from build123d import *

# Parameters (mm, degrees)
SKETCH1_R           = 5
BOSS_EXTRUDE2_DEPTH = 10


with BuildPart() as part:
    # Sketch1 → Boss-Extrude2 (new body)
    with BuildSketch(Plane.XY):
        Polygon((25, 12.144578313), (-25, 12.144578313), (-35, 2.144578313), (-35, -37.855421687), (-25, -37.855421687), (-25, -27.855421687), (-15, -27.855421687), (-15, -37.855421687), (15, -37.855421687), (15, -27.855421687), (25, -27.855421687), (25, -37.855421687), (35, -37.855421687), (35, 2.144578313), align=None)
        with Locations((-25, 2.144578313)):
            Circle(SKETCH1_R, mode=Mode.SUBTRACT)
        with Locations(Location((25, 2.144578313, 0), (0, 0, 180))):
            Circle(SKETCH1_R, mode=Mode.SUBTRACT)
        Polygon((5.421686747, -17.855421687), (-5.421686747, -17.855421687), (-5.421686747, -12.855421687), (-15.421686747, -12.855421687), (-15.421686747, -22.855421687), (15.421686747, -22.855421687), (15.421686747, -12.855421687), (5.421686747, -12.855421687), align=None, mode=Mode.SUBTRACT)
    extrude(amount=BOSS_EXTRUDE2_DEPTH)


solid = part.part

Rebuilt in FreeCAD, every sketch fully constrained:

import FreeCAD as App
import Part
import Sketcher
from FreeCAD import Vector

doc = App.newDocument("Part")
params = doc.addObject("Spreadsheet::Sheet", "Params")
for row, (alias, value) in enumerate([
    ("sketch1_diameter", "10 mm"),
    ("sketch1_width", "50 mm"),
    ("sketch1_width2", "10 mm"),
    ("sketch1_height", "40 mm"),
    ("sketch1_height2", "5 mm"),
    ("pad1_length", "10 mm"),
], start=1):
    params.set(f"A{row}", alias)
    params.set(f"B{row}", "=" + value)
    params.setAlias(f"B{row}", alias)

body = doc.addObject("PartDesign::Body", "Body")

sketch1 = body.newObject("Sketcher::SketchObject", "Sketch")
sketch1.AttachmentSupport = (doc.getObject("XY_Plane"), [""])
sketch1.MapMode = "FlatFace"
sketch1.addGeometry([
    Part.LineSegment(Vector(25, 12, 0), Vector(-25, 12, 0)),
    Part.LineSegment(Vector(-25, 12, 0), Vector(-35, 2, 0)),
    Part.LineSegment(Vector(-35, 2, 0), Vector(-35, -38, 0)),
    Part.LineSegment(Vector(-35, -38, 0), Vector(-25, -38, 0)),
    Part.LineSegment(Vector(-25, -38, 0), Vector(-25, -28, 0)),
    Part.LineSegment(Vector(-25, -28, 0), Vector(-15, -28, 0)),
    Part.LineSegment(Vector(-15, -28, 0), Vector(-15, -38, 0)),
    Part.LineSegment(Vector(-15, -38, 0), Vector(15, -38, 0)),
    Part.LineSegment(Vector(15, -38, 0), Vector(15, -28, 0)),
    Part.LineSegment(Vector(15, -28, 0), Vector(25, -28, 0)),
    Part.LineSegment(Vector(25, -28, 0), Vector(25, -38, 0)),
    Part.LineSegment(Vector(25, -38, 0), Vector(35, -38, 0)),
    Part.LineSegment(Vector(35, -38, 0), Vector(35, 2, 0)),
    Part.LineSegment(Vector(35, 2, 0), Vector(25, 12, 0)),
    Part.LineSegment(Vector(-5, -18, 0), Vector(5, -18, 0)),
    Part.LineSegment(Vector(5, -18, 0), Vector(5, -13, 0)),
    Part.LineSegment(Vector(5, -13, 0), Vector(15, -13, 0)),
    Part.LineSegment(Vector(15, -13, 0), Vector(15, -23, 0)),
    Part.LineSegment(Vector(15, -23, 0), Vector(-15, -23, 0)),
    Part.LineSegment(Vector(-15, -23, 0), Vector(-15, -13, 0)),
    Part.LineSegment(Vector(-15, -13, 0), Vector(-5, -13, 0)),
    Part.LineSegment(Vector(-5, -13, 0), Vector(-5, -18, 0)),
    Part.Circle(Vector(-25, 2, 0), Vector(0, 0, 1), 5),
    Part.Circle(Vector(25, 2, 0), Vector(0, 0, 1), 5),
], False)
sketch1.addConstraint([
    Sketcher.Constraint("Coincident", 0, 2, 1, 1),
    Sketcher.Constraint("Coincident", 1, 2, 2, 1),
    Sketcher.Constraint("Coincident", 2, 2, 3, 1),
    Sketcher.Constraint("Coincident", 3, 2, 4, 1),
    Sketcher.Constraint("Coincident", 4, 2, 5, 1),
    Sketcher.Constraint("Coincident", 5, 2, 6, 1),
    Sketcher.Constraint("Coincident", 6, 2, 7, 1),
    Sketcher.Constraint("Coincident", 7, 2, 8, 1),
    Sketcher.Constraint("Coincident", 8, 2, 9, 1),
    Sketcher.Constraint("Coincident", 9, 2, 10, 1),
    Sketcher.Constraint("Coincident", 10, 2, 11, 1),
    Sketcher.Constraint("Coincident", 11, 2, 12, 1),
    Sketcher.Constraint("Coincident", 12, 2, 13, 1),
    Sketcher.Constraint("Coincident", 13, 2, 0, 1),
    Sketcher.Constraint("Coincident", 14, 2, 15, 1),
    Sketcher.Constraint("Coincident", 15, 2, 16, 1),
    Sketcher.Constraint("Coincident", 16, 2, 17, 1),
    Sketcher.Constraint("Coincident", 17, 2, 18, 1),
    Sketcher.Constraint("Coincident", 18, 2, 19, 1),
    Sketcher.Constraint("Coincident", 19, 2, 20, 1),
    Sketcher.Constraint("Coincident", 20, 2, 21, 1),
    Sketcher.Constraint("Coincident", 21, 2, 14, 1),
    Sketcher.Constraint("Horizontal", 0),
    Sketcher.Constraint("Vertical", 2),
    Sketcher.Constraint("Horizontal", 3),
    Sketcher.Constraint("Vertical", 4),
    Sketcher.Constraint("Horizontal", 5),
    Sketcher.Constraint("Vertical", 6),
    Sketcher.Constraint("Horizontal", 7),
    Sketcher.Constraint("Vertical", 8),
    Sketcher.Constraint("Horizontal", 9),
    Sketcher.Constraint("Vertical", 10),
    Sketcher.Constraint("Horizontal", 11),
    Sketcher.Constraint("Vertical", 12),
    Sketcher.Constraint("Horizontal", 14),
    Sketcher.Constraint("Vertical", 15),
    Sketcher.Constraint("Horizontal", 16),
    Sketcher.Constraint("Vertical", 17),
    Sketcher.Constraint("Horizontal", 18),
    Sketcher.Constraint("Vertical", 19),
    Sketcher.Constraint("Horizontal", 20),
    Sketcher.Constraint("Vertical", 21),
    Sketcher.Constraint("Equal", 22, 23),
    Sketcher.Constraint("Symmetric", 22, 3, 23, 3, -2),
    Sketcher.Constraint("Symmetric", 5, 2, 8, 2, -2),
    Sketcher.Constraint("Symmetric", 3, 2, 10, 2, -2),
    Sketcher.Constraint("Symmetric", 1, 2, 12, 2, -2),
    Sketcher.Constraint("Symmetric", 16, 2, 19, 2, -2),
    Sketcher.Constraint("Perpendicular", 1, 13),
    Sketcher.Constraint("Horizontal", 23, 3, 1, 2),
    Sketcher.Constraint("Horizontal", 3, 2, 6, 2),
    Sketcher.Constraint("Vertical", 22, 3, 0, 2),
    Sketcher.Constraint("Vertical", 0, 2, 3, 2),
    Sketcher.Constraint("Vertical", 10, 2, 13, 2),
    Sketcher.Constraint("Equal", 3, 5),
    Sketcher.Constraint("Equal", 11, 16),
    Sketcher.Constraint("Equal", 16, 20),
    Sketcher.Constraint("Equal", 20, 4),
    Sketcher.Constraint("Equal", 10, 17),
    Sketcher.Constraint("Diameter", 22, 10.0),
    Sketcher.Constraint("DistanceX", 0, 2, 0, 1, 50.0),
    Sketcher.Constraint("DistanceX", 3, 1, 3, 2, 10.0),
    Sketcher.Constraint("DistanceY", 2, 2, 2, 1, 40.0),
    Sketcher.Constraint("DistanceY", 15, 1, 15, 2, 5.0),
    Sketcher.Constraint("DistanceY", 8, 2, 14, 2, 10.0),
    Sketcher.Constraint("DistanceX", 14, 1, 14, 2, 10.843373),
    Sketcher.Constraint("DistanceY", -1, 1, 22, 3, 2.144578),
])
sketch1.setExpression("Constraints[59]", "Params.sketch1_diameter")
sketch1.setExpression("Constraints[60]", "Params.sketch1_width")
sketch1.setExpression("Constraints[61]", "Params.sketch1_width2")
sketch1.setExpression("Constraints[62]", "Params.sketch1_height")
sketch1.setExpression("Constraints[63]", "Params.sketch1_height2")
pad1 = body.newObject("PartDesign::Pad", "Pad")
pad1.Profile = sketch1
pad1.setExpression("Length", "Params.pad1_length")

doc.recompute()
